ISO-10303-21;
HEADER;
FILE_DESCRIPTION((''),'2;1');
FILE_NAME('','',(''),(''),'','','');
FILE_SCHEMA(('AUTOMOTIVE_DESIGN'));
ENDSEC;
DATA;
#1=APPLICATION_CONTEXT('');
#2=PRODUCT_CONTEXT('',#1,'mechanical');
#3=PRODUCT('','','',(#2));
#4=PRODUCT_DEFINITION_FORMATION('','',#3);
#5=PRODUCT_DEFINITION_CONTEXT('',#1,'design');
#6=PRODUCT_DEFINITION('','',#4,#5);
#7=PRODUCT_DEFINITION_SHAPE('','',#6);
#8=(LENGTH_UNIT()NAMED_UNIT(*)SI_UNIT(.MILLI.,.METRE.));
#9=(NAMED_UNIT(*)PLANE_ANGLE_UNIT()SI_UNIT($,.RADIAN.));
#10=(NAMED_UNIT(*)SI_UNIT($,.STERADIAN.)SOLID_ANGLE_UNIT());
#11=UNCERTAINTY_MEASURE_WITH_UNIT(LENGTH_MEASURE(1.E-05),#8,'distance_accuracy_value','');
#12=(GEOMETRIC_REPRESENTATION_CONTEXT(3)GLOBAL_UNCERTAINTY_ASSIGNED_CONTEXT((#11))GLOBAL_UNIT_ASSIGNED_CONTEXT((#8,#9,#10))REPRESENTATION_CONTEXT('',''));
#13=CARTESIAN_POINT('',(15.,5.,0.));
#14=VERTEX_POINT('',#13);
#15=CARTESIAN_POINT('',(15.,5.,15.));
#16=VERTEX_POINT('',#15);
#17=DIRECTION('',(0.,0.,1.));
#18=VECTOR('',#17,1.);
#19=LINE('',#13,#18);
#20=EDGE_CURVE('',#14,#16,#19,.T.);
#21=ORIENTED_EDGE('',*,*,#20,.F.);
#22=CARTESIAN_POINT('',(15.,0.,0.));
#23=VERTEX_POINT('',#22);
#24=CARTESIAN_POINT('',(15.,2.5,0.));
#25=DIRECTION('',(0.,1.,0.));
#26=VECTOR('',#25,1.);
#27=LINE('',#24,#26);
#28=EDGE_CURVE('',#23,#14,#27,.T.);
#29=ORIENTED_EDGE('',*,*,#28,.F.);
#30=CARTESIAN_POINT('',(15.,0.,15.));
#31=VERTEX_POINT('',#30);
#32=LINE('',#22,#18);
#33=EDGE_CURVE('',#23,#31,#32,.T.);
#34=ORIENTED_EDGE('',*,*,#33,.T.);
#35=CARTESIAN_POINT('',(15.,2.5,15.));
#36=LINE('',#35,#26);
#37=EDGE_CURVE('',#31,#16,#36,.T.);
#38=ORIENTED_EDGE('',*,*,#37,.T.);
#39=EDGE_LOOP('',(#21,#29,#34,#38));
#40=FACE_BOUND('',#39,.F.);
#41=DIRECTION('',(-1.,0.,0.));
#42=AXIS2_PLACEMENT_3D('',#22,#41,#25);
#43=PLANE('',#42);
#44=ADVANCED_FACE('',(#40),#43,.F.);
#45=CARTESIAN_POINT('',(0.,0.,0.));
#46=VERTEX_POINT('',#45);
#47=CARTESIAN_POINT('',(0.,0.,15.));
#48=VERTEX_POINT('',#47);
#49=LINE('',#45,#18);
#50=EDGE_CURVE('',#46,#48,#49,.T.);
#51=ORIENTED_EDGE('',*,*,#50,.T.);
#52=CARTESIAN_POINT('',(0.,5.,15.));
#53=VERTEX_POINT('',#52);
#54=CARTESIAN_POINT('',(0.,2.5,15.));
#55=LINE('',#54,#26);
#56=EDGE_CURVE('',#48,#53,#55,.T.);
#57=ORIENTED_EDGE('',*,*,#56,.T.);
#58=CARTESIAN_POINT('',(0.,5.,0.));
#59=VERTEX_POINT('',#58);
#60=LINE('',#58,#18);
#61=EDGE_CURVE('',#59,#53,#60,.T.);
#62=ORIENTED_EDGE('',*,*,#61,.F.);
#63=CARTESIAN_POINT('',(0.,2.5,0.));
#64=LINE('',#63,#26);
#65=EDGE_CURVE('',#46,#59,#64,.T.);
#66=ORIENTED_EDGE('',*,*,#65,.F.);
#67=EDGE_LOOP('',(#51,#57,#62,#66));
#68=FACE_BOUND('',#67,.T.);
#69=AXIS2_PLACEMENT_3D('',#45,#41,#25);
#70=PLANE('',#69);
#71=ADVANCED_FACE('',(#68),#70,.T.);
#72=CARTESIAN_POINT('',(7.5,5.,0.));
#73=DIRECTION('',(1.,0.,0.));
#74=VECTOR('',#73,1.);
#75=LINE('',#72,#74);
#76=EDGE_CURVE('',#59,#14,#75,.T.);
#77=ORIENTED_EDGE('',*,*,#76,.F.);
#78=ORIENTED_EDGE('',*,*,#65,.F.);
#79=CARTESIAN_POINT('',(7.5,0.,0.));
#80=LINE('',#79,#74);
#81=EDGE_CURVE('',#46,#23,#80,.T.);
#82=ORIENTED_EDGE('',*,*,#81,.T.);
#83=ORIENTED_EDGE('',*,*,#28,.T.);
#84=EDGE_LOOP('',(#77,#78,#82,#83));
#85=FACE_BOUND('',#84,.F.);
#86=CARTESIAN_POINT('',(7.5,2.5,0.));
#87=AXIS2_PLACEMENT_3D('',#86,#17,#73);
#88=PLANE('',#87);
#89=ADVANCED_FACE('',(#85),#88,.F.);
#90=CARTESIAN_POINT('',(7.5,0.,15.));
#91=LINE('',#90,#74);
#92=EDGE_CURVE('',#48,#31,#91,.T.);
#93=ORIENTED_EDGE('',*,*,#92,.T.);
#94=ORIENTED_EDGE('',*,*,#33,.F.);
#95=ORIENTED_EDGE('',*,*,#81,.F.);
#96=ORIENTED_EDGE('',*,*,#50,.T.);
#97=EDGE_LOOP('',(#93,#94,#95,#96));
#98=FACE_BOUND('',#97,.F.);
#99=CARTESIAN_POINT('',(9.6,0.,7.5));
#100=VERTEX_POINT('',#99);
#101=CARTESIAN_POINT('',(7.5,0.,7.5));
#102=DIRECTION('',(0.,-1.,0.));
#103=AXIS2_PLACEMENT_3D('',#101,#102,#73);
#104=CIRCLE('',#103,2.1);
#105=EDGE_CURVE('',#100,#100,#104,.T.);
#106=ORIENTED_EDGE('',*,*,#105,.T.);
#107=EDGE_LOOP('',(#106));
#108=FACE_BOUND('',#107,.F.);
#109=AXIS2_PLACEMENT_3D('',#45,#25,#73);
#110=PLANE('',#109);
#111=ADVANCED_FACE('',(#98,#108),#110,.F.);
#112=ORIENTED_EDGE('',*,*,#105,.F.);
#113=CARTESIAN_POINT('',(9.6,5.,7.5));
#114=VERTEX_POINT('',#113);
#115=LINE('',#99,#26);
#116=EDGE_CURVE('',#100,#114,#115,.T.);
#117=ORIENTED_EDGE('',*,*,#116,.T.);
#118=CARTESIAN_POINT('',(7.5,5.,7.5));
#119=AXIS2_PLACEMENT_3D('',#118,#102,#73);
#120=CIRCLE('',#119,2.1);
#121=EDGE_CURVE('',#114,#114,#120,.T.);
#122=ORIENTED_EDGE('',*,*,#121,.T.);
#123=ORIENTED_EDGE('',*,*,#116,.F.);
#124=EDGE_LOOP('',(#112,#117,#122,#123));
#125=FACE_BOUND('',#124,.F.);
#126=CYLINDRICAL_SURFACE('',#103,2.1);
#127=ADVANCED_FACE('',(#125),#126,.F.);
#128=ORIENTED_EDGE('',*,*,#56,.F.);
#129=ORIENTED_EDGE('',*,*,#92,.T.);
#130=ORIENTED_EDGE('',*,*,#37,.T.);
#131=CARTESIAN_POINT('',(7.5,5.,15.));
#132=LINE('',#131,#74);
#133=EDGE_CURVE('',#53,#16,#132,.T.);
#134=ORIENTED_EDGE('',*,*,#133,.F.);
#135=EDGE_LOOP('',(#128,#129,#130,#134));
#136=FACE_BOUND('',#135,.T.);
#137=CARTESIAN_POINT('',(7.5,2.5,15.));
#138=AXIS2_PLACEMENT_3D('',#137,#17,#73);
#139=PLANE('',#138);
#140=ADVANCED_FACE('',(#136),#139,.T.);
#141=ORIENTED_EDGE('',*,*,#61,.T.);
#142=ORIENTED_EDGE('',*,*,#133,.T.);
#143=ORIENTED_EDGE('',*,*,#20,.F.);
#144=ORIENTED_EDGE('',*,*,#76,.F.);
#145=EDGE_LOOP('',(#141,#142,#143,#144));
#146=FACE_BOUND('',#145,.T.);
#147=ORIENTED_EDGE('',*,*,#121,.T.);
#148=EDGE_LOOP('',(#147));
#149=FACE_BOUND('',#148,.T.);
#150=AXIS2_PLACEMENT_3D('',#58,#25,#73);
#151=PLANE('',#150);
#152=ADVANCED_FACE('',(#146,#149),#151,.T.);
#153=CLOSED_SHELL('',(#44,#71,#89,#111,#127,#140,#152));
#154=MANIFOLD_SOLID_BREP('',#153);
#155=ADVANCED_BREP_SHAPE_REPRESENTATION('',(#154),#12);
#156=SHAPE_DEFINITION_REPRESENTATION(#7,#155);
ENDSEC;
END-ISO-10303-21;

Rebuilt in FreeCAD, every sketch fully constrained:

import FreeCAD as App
import Part
import Sketcher
from FreeCAD import Vector
Q = App.Units.Quantity

doc = App.newDocument("Part")
body = doc.addObject("PartDesign::Body", "Body")

sketch1 = body.newObject("Sketcher::SketchObject", "Sketch")
sketch1.AttachmentSupport = (doc.getObject("XY_Plane"), [""])
sketch1.MapMode = "FlatFace"
sketch1.addGeometry(Part.LineSegment(Vector(0, 5, 0), Vector(0, 0, 0)), False)
sketch1.addGeometry(Part.LineSegment(Vector(0, 0, 0), Vector(15, 0, 0)), False)
sketch1.addGeometry(Part.LineSegment(Vector(15, 0, 0), Vector(15, 5, 0)), False)
sketch1.addGeometry(Part.LineSegment(Vector(15, 5, 0), Vector(0, 5, 0)), False)
sketch1.addConstraint(Sketcher.Constraint("Coincident", 0, 2, 1, 1))
sketch1.addConstraint(Sketcher.Constraint("Coincident", 1, 2, 2, 1))
sketch1.addConstraint(Sketcher.Constraint("Coincident", 2, 2, 3, 1))
sketch1.addConstraint(Sketcher.Constraint("Coincident", 3, 2, 0, 1))
sketch1.addConstraint(Sketcher.Constraint("Vertical", 0))
sketch1.addConstraint(Sketcher.Constraint("Horizontal", 1))
sketch1.addConstraint(Sketcher.Constraint("Vertical", 2))
sketch1.addConstraint(Sketcher.Constraint("Horizontal", 3))
sketch1.addConstraint(Sketcher.Constraint("Coincident", 0, 2, -1, 1))
sketch1.addConstraint(Sketcher.Constraint("DistanceX", 1, 1, 1, 2, Q("15 mm")))
sketch1.addConstraint(Sketcher.Constraint("DistanceY", 0, 2, 0, 1, Q("5 mm")))
pad1 = body.newObject("PartDesign::Pad", "Pad")
pad1.Profile = sketch1
pad1.Length = 15

sketch2 = body.newObject("Sketcher::SketchObject", "Sketch001")
sketch2.AttachmentSupport = (doc.getObject("XZ_Plane"), [""])
sketch2.MapMode = "FlatFace"
sketch2.addGeometry(Part.Circle(Vector(7.5, 7.5, 0), Vector(0, 0, 1), 2.1), False)
sketch2.addConstraint(Sketcher.Constraint("Diameter", 0, Q("4.2 mm")))
sketch2.addConstraint(Sketcher.Constraint("DistanceX", -1, 1, 0, 3, Q("7.5 mm")))
sketch2.addConstraint(Sketcher.Constraint("DistanceY", -1, 1, 0, 3, Q("7.5 mm")))
pocket1 = body.newObject("PartDesign::Pocket", "Pocket")
pocket1.Profile = sketch2
pocket1.Length = 5

doc.recompute()
